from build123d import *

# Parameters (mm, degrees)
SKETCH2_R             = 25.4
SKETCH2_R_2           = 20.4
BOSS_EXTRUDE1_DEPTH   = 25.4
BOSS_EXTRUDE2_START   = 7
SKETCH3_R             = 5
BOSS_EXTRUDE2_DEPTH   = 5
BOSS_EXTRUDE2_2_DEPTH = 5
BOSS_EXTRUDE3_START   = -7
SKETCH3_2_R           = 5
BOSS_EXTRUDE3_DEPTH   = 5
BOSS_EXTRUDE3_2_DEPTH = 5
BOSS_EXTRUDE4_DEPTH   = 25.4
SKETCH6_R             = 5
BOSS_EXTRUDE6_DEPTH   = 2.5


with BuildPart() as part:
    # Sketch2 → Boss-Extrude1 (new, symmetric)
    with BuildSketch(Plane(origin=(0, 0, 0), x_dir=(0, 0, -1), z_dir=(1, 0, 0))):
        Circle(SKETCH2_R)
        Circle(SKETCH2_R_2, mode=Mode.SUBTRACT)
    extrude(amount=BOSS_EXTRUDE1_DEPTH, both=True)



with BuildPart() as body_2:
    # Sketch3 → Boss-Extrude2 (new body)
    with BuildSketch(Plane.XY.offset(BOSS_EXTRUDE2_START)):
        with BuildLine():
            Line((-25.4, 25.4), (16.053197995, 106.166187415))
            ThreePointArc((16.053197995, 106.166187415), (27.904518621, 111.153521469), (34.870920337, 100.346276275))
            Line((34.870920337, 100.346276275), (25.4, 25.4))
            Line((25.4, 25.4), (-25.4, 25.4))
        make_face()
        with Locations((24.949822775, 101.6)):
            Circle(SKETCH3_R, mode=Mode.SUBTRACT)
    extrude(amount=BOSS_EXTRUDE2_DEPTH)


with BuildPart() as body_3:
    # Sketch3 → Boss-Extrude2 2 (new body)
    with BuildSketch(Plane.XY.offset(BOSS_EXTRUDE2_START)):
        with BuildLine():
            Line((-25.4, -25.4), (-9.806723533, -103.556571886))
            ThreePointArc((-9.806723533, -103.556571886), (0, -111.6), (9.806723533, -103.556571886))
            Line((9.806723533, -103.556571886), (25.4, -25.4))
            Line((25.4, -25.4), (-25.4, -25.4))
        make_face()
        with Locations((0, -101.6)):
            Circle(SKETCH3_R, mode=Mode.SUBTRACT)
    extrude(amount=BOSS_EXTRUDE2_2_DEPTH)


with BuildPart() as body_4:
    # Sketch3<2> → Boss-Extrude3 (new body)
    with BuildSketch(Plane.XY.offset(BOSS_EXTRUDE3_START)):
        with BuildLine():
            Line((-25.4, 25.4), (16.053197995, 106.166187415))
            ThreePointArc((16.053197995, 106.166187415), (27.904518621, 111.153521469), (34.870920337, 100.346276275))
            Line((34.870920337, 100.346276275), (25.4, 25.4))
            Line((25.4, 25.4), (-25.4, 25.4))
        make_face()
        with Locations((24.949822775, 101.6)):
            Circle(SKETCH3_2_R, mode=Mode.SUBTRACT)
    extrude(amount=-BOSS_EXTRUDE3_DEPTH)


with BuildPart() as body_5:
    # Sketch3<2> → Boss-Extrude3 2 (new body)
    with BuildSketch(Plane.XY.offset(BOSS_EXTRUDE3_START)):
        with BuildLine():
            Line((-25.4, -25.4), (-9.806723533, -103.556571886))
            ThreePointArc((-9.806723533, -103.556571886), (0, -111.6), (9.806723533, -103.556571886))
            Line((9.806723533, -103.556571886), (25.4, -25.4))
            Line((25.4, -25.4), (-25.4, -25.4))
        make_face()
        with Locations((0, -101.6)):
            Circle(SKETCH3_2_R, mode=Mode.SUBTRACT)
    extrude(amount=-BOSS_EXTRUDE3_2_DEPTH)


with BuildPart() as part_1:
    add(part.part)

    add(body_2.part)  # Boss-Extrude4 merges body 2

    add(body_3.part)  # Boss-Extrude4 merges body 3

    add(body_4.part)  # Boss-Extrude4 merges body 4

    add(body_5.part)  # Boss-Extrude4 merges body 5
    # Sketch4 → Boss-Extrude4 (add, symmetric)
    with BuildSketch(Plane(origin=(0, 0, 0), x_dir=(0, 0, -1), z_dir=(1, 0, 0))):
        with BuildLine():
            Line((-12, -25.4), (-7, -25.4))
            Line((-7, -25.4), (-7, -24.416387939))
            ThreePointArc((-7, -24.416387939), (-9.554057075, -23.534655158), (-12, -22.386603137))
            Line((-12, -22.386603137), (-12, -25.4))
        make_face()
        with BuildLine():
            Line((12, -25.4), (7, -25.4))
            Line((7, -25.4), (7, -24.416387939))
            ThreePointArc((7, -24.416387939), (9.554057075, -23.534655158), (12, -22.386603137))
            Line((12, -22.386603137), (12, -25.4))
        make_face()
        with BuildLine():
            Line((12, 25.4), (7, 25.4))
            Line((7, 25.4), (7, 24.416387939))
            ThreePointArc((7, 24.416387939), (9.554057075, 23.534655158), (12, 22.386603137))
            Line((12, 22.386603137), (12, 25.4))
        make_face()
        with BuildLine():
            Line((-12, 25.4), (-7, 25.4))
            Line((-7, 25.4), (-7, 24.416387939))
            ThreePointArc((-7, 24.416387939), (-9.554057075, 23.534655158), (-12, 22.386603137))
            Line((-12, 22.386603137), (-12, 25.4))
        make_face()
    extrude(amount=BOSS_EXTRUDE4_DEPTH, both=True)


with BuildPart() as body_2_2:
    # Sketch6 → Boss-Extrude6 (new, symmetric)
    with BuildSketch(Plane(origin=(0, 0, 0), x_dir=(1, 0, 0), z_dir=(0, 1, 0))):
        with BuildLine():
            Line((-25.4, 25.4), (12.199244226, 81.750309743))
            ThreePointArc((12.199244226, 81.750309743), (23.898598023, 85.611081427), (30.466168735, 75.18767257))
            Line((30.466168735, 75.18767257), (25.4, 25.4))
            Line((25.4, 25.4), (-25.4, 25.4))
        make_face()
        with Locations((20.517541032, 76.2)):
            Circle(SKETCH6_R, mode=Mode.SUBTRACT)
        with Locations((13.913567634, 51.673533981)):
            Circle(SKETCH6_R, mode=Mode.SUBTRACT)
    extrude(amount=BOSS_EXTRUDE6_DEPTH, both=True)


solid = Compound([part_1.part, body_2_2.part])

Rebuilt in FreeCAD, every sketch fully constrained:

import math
import FreeCAD as App
import Part
import Sketcher
from FreeCAD import Vector
Q = App.Units.Quantity

doc = App.newDocument("Part")
body = doc.addObject("PartDesign::Body", "Body")

# Sketch on YZ plane
sketch1 = body.newObject("Sketcher::SketchObject", "Sketch")
sketch1.AttachmentSupport = (doc.getObject("YZ_Plane"), [""])
sketch1.MapMode = "FlatFace"
sketch1.addGeometry(Part.Circle(Vector(0, 0, 0), Vector(0, 0, 1), 25), False)
sketch1.addGeometry(Part.Circle(Vector(0, 0, 0), Vector(0, 0, 1), 20), False)
sketch1.addConstraint(Sketcher.Constraint("Coincident", 0, 3, -1, 1))
sketch1.addConstraint(Sketcher.Constraint("Coincident", 1, 3, -1, 1))
sketch1.addConstraint(Sketcher.Constraint("Diameter", 0, Q("50.8 mm")))
sketch1.addConstraint(Sketcher.Constraint("Diameter", 1, Q("40.8 mm")))
pad1 = body.newObject("PartDesign::Pad", "Pad")
pad1.Profile = sketch1
pad1.Length = 50.8
pad1.Midplane = True
body2 = doc.addObject("PartDesign::Body", "Body001")

# Sketch on XY plane
sketch2 = body2.newObject("Sketcher::SketchObject", "Sketch001")
sketch2.AttachmentSupport = (doc.getObject("XY_Plane001"), [""])
sketch2.MapMode = "FlatFace"
sketch2.AttachmentOffset = App.Placement(Vector(0, 0, 7), App.Rotation())
sketch2.addGeometry(Part.LineSegment(Vector(16, 106, 0), Vector(-25, 25, 0)), False)
sketch2.addGeometry(Part.LineSegment(Vector(-25, 25, 0), Vector(25, 25, 0)), False)
sketch2.addGeometry(Part.LineSegment(Vector(25, 25, 0), Vector(35, 100, 0)), False)
sketch2.addGeometry(Part.ArcOfCircle(Part.Circle(Vector(25, 102, 0), Vector(0, 0, 1), 10), math.radians(-7), math.radians(153)), False)
sketch2.addGeometry(Part.Circle(Vector(25, 102, 0), Vector(0, 0, 1), 5), False)
sketch2.addConstraint(Sketcher.Constraint("Coincident", 0, 2, 1, 1))
sketch2.addConstraint(Sketcher.Constraint("Coincident", 1, 2, 2, 1))
sketch2.addConstraint(Sketcher.Constraint("Tangent", 2, 2, 3, 1))
sketch2.addConstraint(Sketcher.Constraint("Tangent", 3, 2, 0, 1))
sketch2.addConstraint(Sketcher.Constraint("Horizontal", 1))
sketch2.addConstraint(Sketcher.Constraint("Coincident", 4, 3, 3, 3))
sketch2.addConstraint(Sketcher.Constraint("Diameter", 4, Q("10 mm")))
sketch2.addConstraint(Sketcher.Constraint("Radius", 3, Q("10 mm")))
sketch2.addConstraint(Sketcher.Constraint("DistanceX", 1, 1, 1, 2, Q("50.8 mm")))
sketch2.addConstraint(Sketcher.Constraint("DistanceY", -1, 1, 3, 3, Q("101.6 mm")))
sketch2.addConstraint(Sketcher.Constraint("DistanceX", 0, 2, -1, 1, Q("25.4 mm")))
sketch2.addConstraint(Sketcher.Constraint("DistanceY", -1, 1, 0, 2, Q("25.4 mm")))
sketch2.addConstraint(Sketcher.Constraint("DistanceX", -1, 1, 2, 2, Q("34.87092 mm")))
pad2 = body2.newObject("PartDesign::Pad", "Pad001")
pad2.Profile = sketch2
pad2.Length = 5
body3 = doc.addObject("PartDesign::Body", "Body002")

# Sketch on XY plane
sketch3 = body3.newObject("Sketcher::SketchObject", "Sketch002")
sketch3.AttachmentSupport = (doc.getObject("XY_Plane002"), [""])
sketch3.MapMode = "FlatFace"
sketch3.AttachmentOffset = App.Placement(Vector(0, 0, 7), App.Rotation())
sketch3.addGeometry(Part.LineSegment(Vector(-25, -25, 0), Vector(-10, -104, 0)), False)
sketch3.addGeometry(Part.ArcOfCircle(Part.Circle(Vector(0, -102, 0), Vector(0, 0, 1), 10), math.radians(-169), math.radians(-11)), False)
sketch3.addGeometry(Part.LineSegment(Vector(10, -104, 0), Vector(25, -25, 0)), False)
sketch3.addGeometry(Part.LineSegment(Vector(25, -25, 0), Vector(-25, -25, 0)), False)
sketch3.addGeometry(Part.Circle(Vector(0, -102, 0), Vector(0, 0, 1), 5), False)
sketch3.addConstraint(Sketcher.Constraint("Tangent", 0, 2, 1, 1))
sketch3.addConstraint(Sketcher.Constraint("Tangent", 1, 2, 2, 1))
sketch3.addConstraint(Sketcher.Constraint("Coincident", 2, 2, 3, 1))
sketch3.addConstraint(Sketcher.Constraint("Coincident", 3, 2, 0, 1))
sketch3.addConstraint(Sketcher.Constraint("Horizontal", 3))
sketch3.addConstraint(Sketcher.Constraint("Coincident", 4, 3, 1, 3))
sketch3.addConstraint(Sketcher.Constraint("Symmetric", 0, 2, 1, 2, -2))
sketch3.addConstraint(Sketcher.Constraint("Diameter", 4, Q("10 mm")))
sketch3.addConstraint(Sketcher.Constraint("Radius", 1, Q("10 mm")))
sketch3.addConstraint(Sketcher.Constraint("DistanceX", 3, 2, 3, 1, Q("50.8 mm")))
sketch3.addConstraint(Sketcher.Constraint("DistanceY", 1, 3, -1, 1, Q("101.6 mm")))
sketch3.addConstraint(Sketcher.Constraint("DistanceY", 2, 2, -1, 1, Q("25.4 mm")))
pad3 = body3.newObject("PartDesign::Pad", "Pad002")
pad3.Profile = sketch3
pad3.Length = 5
body4 = doc.addObject("PartDesign::Body", "Body003")

# Sketch on XY plane
sketch4 = body4.newObject("Sketcher::SketchObject", "Sketch003")
sketch4.AttachmentSupport = (doc.getObject("XY_Plane003"), [""])
sketch4.MapMode = "FlatFace"
sketch4.AttachmentOffset = App.Placement(Vector(0, 0, -7), App.Rotation())
sketch4.addGeometry(Part.LineSegment(Vector(16, 106, 0), Vector(-25, 25, 0)), False)
sketch4.addGeometry(Part.LineSegment(Vector(-25, 25, 0), Vector(25, 25, 0)), False)
sketch4.addGeometry(Part.LineSegment(Vector(25, 25, 0), Vector(35, 100, 0)), False)
sketch4.addGeometry(Part.ArcOfCircle(Part.Circle(Vector(25, 102, 0), Vector(0, 0, 1), 10), math.radians(-7), math.radians(153)), False)
sketch4.addGeometry(Part.Circle(Vector(25, 102, 0), Vector(0, 0, 1), 5), False)
sketch4.addConstraint(Sketcher.Constraint("Coincident", 0, 2, 1, 1))
sketch4.addConstraint(Sketcher.Constraint("Coincident", 1, 2, 2, 1))
sketch4.addConstraint(Sketcher.Constraint("Tangent", 2, 2, 3, 1))
sketch4.addConstraint(Sketcher.Constraint("Tangent", 3, 2, 0, 1))
sketch4.addConstraint(Sketcher.Constraint("Horizontal", 1))
sketch4.addConstraint(Sketcher.Constraint("Coincident", 4, 3, 3, 3))
sketch4.addConstraint(Sketcher.Constraint("Diameter", 4, Q("10 mm")))
sketch4.addConstraint(Sketcher.Constraint("Radius", 3, Q("10 mm")))
sketch4.addConstraint(Sketcher.Constraint("DistanceX", 1, 1, 1, 2, Q("50.8 mm")))
sketch4.addConstraint(Sketcher.Constraint("DistanceY", -1, 1, 3, 3, Q("101.6 mm")))
sketch4.addConstraint(Sketcher.Constraint("DistanceX", 0, 2, -1, 1, Q("25.4 mm")))
sketch4.addConstraint(Sketcher.Constraint("DistanceY", -1, 1, 0, 2, Q("25.4 mm")))
sketch4.addConstraint(Sketcher.Constraint("DistanceX", -1, 1, 2, 2, Q("34.87092 mm")))
pad4 = body4.newObject("PartDesign::Pad", "Pad003")
pad4.Profile = sketch4
pad4.Length = 5
pad4.Reversed = True
body5 = doc.addObject("PartDesign::Body", "Body004")

# Sketch on XY plane
sketch5 = body5.newObject("Sketcher::SketchObject", "Sketch004")
sketch5.AttachmentSupport = (doc.getObject("XY_Plane004"), [""])
sketch5.MapMode = "FlatFace"
sketch5.AttachmentOffset = App.Placement(Vector(0, 0, -7), App.Rotation())
sketch5.addGeometry(Part.LineSegment(Vector(-25, -25, 0), Vector(-10, -104, 0)), False)
sketch5.addGeometry(Part.ArcOfCircle(Part.Circle(Vector(0, -102, 0), Vector(0, 0, 1), 10), math.radians(-169), math.radians(-11)), False)
sketch5.addGeometry(Part.LineSegment(Vector(10, -104, 0), Vector(25, -25, 0)), False)
sketch5.addGeometry(Part.LineSegment(Vector(25, -25, 0), Vector(-25, -25, 0)), False)
sketch5.addGeometry(Part.Circle(Vector(0, -102, 0), Vector(0, 0, 1), 5), False)
sketch5.addConstraint(Sketcher.Constraint("Tangent", 0, 2, 1, 1))
sketch5.addConstraint(Sketcher.Constraint("Tangent", 1, 2, 2, 1))
sketch5.addConstraint(Sketcher.Constraint("Coincident", 2, 2, 3, 1))
sketch5.addConstraint(Sketcher.Constraint("Coincident", 3, 2, 0, 1))
sketch5.addConstraint(Sketcher.Constraint("Horizontal", 3))
sketch5.addConstraint(Sketcher.Constraint("Coincident", 4, 3, 1, 3))
sketch5.addConstraint(Sketcher.Constraint("Symmetric", 0, 2, 1, 2, -2))
sketch5.addConstraint(Sketcher.Constraint("Diameter", 4, Q("10 mm")))
sketch5.addConstraint(Sketcher.Constraint("Radius", 1, Q("10 mm")))
sketch5.addConstraint(Sketcher.Constraint("DistanceX", 3, 2, 3, 1, Q("50.8 mm")))
sketch5.addConstraint(Sketcher.Constraint("DistanceY", 1, 3, -1, 1, Q("101.6 mm")))
sketch5.addConstraint(Sketcher.Constraint("DistanceY", 2, 2, -1, 1, Q("25.4 mm")))
pad5 = body5.newObject("PartDesign::Pad", "Pad004")
pad5.Profile = sketch5
pad5.Length = 5
pad5.Reversed = True
body.AllowCompound = True
doc.recompute()

boolean = body.newObject("PartDesign::Boolean", "Boolean")
boolean.Type = "Fuse"
boolean.addObjects([body2])
doc.recompute()

boolean2 = body.newObject("PartDesign::Boolean", "Boolean001")
boolean2.Type = "Fuse"
boolean2.addObjects([body3])
doc.recompute()

boolean3 = body.newObject("PartDesign::Boolean", "Boolean002")
boolean3.Type = "Fuse"
boolean3.addObjects([body4])
doc.recompute()

boolean4 = body.newObject("PartDesign::Boolean", "Boolean003")
boolean4.Type = "Fuse"
boolean4.addObjects([body5])

# Sketch on YZ plane
sketch6 = body.newObject("Sketcher::SketchObject", "Sketch005")
sketch6.AttachmentSupport = (doc.getObject("YZ_Plane"), [""])
sketch6.MapMode = "FlatFace"
sketch6.addGeometry(Part.LineSegment(Vector(-25.4, 12, 0), Vector(-25.4, 7, 0)), False)
sketch6.addGeometry(Part.LineSegment(Vector(-25.4, 7, 0), Vector(-24.4, 7, 0)), False)
sketch6.addGeometry(Part.ArcOfCircle(Part.Circle(Vector(0, 0, 0), Vector(0, 0, 1), 25.4), math.radians(151.81), math.radians(164)), False)
sketch6.addGeometry(Part.LineSegment(Vector(-22.4, 12, 0), Vector(-25.4, 12, 0)), False)
sketch6.addGeometry(Part.LineSegment(Vector(-25.4, -7, 0), Vector(-25.4, -12, 0)), False)
sketch6.addGeometry(Part.LineSegment(Vector(-25.4, -12, 0), Vector(-22.4, -12, 0)), False)
sketch6.addGeometry(Part.ArcOfCircle(Part.Circle(Vector(0, 0, 0), Vector(0, 0, 1), 25.4), math.radians(-164), math.radians(-151.81)), False)
sketch6.addGeometry(Part.LineSegment(Vector(-24.4, -7, 0), Vector(-25.4, -7, 0)), False)
sketch6.addGeometry(Part.LineSegment(Vector(25.4, -12, 0), Vector(25.4, -7, 0)), False)
sketch6.addGeometry(Part.LineSegment(Vector(25.4, -7, 0), Vector(24.4, -7, 0)), False)
sketch6.addGeometry(Part.ArcOfCircle(Part.Circle(Vector(0, 0, 0), Vector(0, 0, 1), 25.4), math.radians(-28.19), math.radians(-16)), False)
sketch6.addGeometry(Part.LineSegment(Vector(22.4, -12, 0), Vector(25.4, -12, 0)), False)
sketch6.addGeometry(Part.LineSegment(Vector(25.4, 7, 0), Vector(25.4, 12, 0)), False)
sketch6.addGeometry(Part.LineSegment(Vector(25.4, 12, 0), Vector(22.4, 12, 0)), False)
sketch6.addGeometry(Part.ArcOfCircle(Part.Circle(Vector(0, 0, 0), Vector(0, 0, 1), 25.4), math.radians(16), math.radians(28.19)), False)
sketch6.addGeometry(Part.LineSegment(Vector(24.4, 7, 0), Vector(25.4, 7, 0)), False)
sketch6.addConstraint(Sketcher.Constraint("Coincident", 0, 2, 1, 1))
sketch6.addConstraint(Sketcher.Constraint("Coincident", 1, 2, 2, 2))
sketch6.addConstraint(Sketcher.Constraint("Coincident", 2, 1, 3, 1))
sketch6.addConstraint(Sketcher.Constraint("Coincident", 3, 2, 0, 1))
sketch6.addConstraint(Sketcher.Constraint("Coincident", 4, 2, 5, 1))
sketch6.addConstraint(Sketcher.Constraint("Coincident", 5, 2, 6, 2))
sketch6.addConstraint(Sketcher.Constraint("Coincident", 6, 1, 7, 1))
sketch6.addConstraint(Sketcher.Constraint("Coincident", 7, 2, 4, 1))
sketch6.addConstraint(Sketcher.Constraint("Coincident", 8, 2, 9, 1))
sketch6.addConstraint(Sketcher.Constraint("Coincident", 9, 2, 10, 2))
sketch6.addConstraint(Sketcher.Constraint("Coincident", 10, 1, 11, 1))
sketch6.addConstraint(Sketcher.Constraint("Coincident", 11, 2, 8, 1))
sketch6.addConstraint(Sketcher.Constraint("Coincident", 12, 2, 13, 1))
sketch6.addConstraint(Sketcher.Constraint("Coincident", 13, 2, 14, 2))
sketch6.addConstraint(Sketcher.Constraint("Coincident", 14, 1, 15, 1))
sketch6.addConstraint(Sketcher.Constraint("Coincident", 15, 2, 12, 1))
sketch6.addConstraint(Sketcher.Constraint("Vertical", 0))
sketch6.addConstraint(Sketcher.Constraint("Horizontal", 1))
sketch6.addConstraint(Sketcher.Constraint("Horizontal", 3))
sketch6.addConstraint(Sketcher.Constraint("Vertical", 4))
sketch6.addConstraint(Sketcher.Constraint("Horizontal", 5))
sketch6.addConstraint(Sketcher.Constraint("Horizontal", 7))
sketch6.addConstraint(Sketcher.Constraint("Vertical", 8))
sketch6.addConstraint(Sketcher.Constraint("Horizontal", 9))
sketch6.addConstraint(Sketcher.Constraint("Horizontal", 11))
sketch6.addConstraint(Sketcher.Constraint("Vertical", 12))
sketch6.addConstraint(Sketcher.Constraint("Horizontal", 13))
sketch6.addConstraint(Sketcher.Constraint("Horizontal", 15))
sketch6.addConstraint(Sketcher.Constraint("Coincident", 2, 3, -1, 1))
sketch6.addConstraint(Sketcher.Constraint("Coincident", 6, 3, -1, 1))
sketch6.addConstraint(Sketcher.Constraint("Coincident", 10, 3, -1, 1))
sketch6.addConstraint(Sketcher.Constraint("Coincident", 14, 3, -1, 1))
sketch6.addConstraint(Sketcher.Constraint("Equal", 2, 6))
sketch6.addConstraint(Sketcher.Constraint("Equal", 6, 10))
sketch6.addConstraint(Sketcher.Constraint("Equal", 10, 14))
sketch6.addConstraint(Sketcher.Constraint("Symmetric", 0, 2, 8, 2, -1, 1))
sketch6.addConstraint(Sketcher.Constraint("Symmetric", 4, 2, 12, 2, -1, 1))
sketch6.addConstraint(Sketcher.Constraint("Symmetric", 7, 2, 8, 2, -2))
sketch6.addConstraint(Sketcher.Constraint("Horizontal", 5, 2, 10, 1))
sketch6.addConstraint(Sketcher.Constraint("Horizontal", 3, 2, 12, 2))
sketch6.addConstraint(Sketcher.Constraint("Horizontal", 1, 2, 14, 1))
sketch6.addConstraint(Sketcher.Constraint("Radius", 2, Q("25.4 mm")))
sketch6.addConstraint(Sketcher.Constraint("DistanceY", 0, 2, 0, 1, Q("5 mm")))
sketch6.addConstraint(Sketcher.Constraint("DistanceY", -1, 1, 0, 2, Q("7 mm")))
sketch6.addConstraint(Sketcher.Constraint("DistanceX", 0, 2, -1, 1, Q("25.4 mm")))
pad6 = body.newObject("PartDesign::Pad", "Pad005")
pad6.Profile = sketch6
pad6.Length = 50.8
pad6.Midplane = True
body6 = doc.addObject("PartDesign::Body", "Body005")

# Sketch on XZ plane
sketch7 = body6.newObject("Sketcher::SketchObject", "Sketch006")
sketch7.AttachmentSupport = (doc.getObject("XZ_Plane005"), [""])
sketch7.MapMode = "FlatFace"
sketch7.addGeometry(Part.LineSegment(Vector(12, -82, 0), Vector(-25, -25, 0)), False)
sketch7.addGeometry(Part.LineSegment(Vector(-25, -25, 0), Vector(25, -25, 0)), False)
sketch7.addGeometry(Part.LineSegment(Vector(25, -25, 0), Vector(30, -75, 0)), False)
sketch7.addGeometry(Part.ArcOfCircle(Part.Circle(Vector(21, -76, 0), Vector(0, 0, 1), 10), math.radians(-146), math.radians(6)), False)
sketch7.addGeometry(Part.Circle(Vector(14, -52, 0), Vector(0, 0, 1), 5), False)
sketch7.addGeometry(Part.Circle(Vector(21, -76, 0), Vector(0, 0, 1), 5), False)
sketch7.addConstraint(Sketcher.Constraint("Coincident", 0, 2, 1, 1))
sketch7.addConstraint(Sketcher.Constraint("Coincident", 1, 2, 2, 1))
sketch7.addConstraint(Sketcher.Constraint("Tangent", 2, 2, 3, 2))
sketch7.addConstraint(Sketcher.Constraint("Tangent", 3, 1, 0, 1))
sketch7.addConstraint(Sketcher.Constraint("Horizontal", 1))
sketch7.addConstraint(Sketcher.Constraint("Coincident", 5, 3, 3, 3))
sketch7.addConstraint(Sketcher.Constraint("Equal", 4, 5))
sketch7.addConstraint(Sketcher.Constraint("Diameter", 4, Q("10 mm")))
sketch7.addConstraint(Sketcher.Constraint("Radius", 3, Q("10 mm")))
sketch7.addConstraint(Sketcher.Constraint("DistanceX", 1, 1, 1, 2, Q("50.8 mm")))
sketch7.addConstraint(Sketcher.Constraint("DistanceY", 3, 3, -1, 1, Q("76.2 mm")))
sketch7.addConstraint(Sketcher.Constraint("DistanceX", 0, 2, -1, 1, Q("25.4 mm")))
sketch7.addConstraint(Sketcher.Constraint("DistanceY", 0, 2, -1, 1, Q("25.4 mm")))
sketch7.addConstraint(Sketcher.Constraint("DistanceX", 4, 3, 2, 2, Q("16.552601 mm")))
sketch7.addConstraint(Sketcher.Constraint("DistanceX", -1, 1, 3, 3, Q("20.517541 mm")))
sketch7.addConstraint(Sketcher.Constraint("DistanceY", 2, 2, 4, 3, Q("23.514139 mm")))
pad7 = body6.newObject("PartDesign::Pad", "Pad006")
pad7.Profile = sketch7
pad7.Length = 5
pad7.Midplane = True

doc.recompute()
